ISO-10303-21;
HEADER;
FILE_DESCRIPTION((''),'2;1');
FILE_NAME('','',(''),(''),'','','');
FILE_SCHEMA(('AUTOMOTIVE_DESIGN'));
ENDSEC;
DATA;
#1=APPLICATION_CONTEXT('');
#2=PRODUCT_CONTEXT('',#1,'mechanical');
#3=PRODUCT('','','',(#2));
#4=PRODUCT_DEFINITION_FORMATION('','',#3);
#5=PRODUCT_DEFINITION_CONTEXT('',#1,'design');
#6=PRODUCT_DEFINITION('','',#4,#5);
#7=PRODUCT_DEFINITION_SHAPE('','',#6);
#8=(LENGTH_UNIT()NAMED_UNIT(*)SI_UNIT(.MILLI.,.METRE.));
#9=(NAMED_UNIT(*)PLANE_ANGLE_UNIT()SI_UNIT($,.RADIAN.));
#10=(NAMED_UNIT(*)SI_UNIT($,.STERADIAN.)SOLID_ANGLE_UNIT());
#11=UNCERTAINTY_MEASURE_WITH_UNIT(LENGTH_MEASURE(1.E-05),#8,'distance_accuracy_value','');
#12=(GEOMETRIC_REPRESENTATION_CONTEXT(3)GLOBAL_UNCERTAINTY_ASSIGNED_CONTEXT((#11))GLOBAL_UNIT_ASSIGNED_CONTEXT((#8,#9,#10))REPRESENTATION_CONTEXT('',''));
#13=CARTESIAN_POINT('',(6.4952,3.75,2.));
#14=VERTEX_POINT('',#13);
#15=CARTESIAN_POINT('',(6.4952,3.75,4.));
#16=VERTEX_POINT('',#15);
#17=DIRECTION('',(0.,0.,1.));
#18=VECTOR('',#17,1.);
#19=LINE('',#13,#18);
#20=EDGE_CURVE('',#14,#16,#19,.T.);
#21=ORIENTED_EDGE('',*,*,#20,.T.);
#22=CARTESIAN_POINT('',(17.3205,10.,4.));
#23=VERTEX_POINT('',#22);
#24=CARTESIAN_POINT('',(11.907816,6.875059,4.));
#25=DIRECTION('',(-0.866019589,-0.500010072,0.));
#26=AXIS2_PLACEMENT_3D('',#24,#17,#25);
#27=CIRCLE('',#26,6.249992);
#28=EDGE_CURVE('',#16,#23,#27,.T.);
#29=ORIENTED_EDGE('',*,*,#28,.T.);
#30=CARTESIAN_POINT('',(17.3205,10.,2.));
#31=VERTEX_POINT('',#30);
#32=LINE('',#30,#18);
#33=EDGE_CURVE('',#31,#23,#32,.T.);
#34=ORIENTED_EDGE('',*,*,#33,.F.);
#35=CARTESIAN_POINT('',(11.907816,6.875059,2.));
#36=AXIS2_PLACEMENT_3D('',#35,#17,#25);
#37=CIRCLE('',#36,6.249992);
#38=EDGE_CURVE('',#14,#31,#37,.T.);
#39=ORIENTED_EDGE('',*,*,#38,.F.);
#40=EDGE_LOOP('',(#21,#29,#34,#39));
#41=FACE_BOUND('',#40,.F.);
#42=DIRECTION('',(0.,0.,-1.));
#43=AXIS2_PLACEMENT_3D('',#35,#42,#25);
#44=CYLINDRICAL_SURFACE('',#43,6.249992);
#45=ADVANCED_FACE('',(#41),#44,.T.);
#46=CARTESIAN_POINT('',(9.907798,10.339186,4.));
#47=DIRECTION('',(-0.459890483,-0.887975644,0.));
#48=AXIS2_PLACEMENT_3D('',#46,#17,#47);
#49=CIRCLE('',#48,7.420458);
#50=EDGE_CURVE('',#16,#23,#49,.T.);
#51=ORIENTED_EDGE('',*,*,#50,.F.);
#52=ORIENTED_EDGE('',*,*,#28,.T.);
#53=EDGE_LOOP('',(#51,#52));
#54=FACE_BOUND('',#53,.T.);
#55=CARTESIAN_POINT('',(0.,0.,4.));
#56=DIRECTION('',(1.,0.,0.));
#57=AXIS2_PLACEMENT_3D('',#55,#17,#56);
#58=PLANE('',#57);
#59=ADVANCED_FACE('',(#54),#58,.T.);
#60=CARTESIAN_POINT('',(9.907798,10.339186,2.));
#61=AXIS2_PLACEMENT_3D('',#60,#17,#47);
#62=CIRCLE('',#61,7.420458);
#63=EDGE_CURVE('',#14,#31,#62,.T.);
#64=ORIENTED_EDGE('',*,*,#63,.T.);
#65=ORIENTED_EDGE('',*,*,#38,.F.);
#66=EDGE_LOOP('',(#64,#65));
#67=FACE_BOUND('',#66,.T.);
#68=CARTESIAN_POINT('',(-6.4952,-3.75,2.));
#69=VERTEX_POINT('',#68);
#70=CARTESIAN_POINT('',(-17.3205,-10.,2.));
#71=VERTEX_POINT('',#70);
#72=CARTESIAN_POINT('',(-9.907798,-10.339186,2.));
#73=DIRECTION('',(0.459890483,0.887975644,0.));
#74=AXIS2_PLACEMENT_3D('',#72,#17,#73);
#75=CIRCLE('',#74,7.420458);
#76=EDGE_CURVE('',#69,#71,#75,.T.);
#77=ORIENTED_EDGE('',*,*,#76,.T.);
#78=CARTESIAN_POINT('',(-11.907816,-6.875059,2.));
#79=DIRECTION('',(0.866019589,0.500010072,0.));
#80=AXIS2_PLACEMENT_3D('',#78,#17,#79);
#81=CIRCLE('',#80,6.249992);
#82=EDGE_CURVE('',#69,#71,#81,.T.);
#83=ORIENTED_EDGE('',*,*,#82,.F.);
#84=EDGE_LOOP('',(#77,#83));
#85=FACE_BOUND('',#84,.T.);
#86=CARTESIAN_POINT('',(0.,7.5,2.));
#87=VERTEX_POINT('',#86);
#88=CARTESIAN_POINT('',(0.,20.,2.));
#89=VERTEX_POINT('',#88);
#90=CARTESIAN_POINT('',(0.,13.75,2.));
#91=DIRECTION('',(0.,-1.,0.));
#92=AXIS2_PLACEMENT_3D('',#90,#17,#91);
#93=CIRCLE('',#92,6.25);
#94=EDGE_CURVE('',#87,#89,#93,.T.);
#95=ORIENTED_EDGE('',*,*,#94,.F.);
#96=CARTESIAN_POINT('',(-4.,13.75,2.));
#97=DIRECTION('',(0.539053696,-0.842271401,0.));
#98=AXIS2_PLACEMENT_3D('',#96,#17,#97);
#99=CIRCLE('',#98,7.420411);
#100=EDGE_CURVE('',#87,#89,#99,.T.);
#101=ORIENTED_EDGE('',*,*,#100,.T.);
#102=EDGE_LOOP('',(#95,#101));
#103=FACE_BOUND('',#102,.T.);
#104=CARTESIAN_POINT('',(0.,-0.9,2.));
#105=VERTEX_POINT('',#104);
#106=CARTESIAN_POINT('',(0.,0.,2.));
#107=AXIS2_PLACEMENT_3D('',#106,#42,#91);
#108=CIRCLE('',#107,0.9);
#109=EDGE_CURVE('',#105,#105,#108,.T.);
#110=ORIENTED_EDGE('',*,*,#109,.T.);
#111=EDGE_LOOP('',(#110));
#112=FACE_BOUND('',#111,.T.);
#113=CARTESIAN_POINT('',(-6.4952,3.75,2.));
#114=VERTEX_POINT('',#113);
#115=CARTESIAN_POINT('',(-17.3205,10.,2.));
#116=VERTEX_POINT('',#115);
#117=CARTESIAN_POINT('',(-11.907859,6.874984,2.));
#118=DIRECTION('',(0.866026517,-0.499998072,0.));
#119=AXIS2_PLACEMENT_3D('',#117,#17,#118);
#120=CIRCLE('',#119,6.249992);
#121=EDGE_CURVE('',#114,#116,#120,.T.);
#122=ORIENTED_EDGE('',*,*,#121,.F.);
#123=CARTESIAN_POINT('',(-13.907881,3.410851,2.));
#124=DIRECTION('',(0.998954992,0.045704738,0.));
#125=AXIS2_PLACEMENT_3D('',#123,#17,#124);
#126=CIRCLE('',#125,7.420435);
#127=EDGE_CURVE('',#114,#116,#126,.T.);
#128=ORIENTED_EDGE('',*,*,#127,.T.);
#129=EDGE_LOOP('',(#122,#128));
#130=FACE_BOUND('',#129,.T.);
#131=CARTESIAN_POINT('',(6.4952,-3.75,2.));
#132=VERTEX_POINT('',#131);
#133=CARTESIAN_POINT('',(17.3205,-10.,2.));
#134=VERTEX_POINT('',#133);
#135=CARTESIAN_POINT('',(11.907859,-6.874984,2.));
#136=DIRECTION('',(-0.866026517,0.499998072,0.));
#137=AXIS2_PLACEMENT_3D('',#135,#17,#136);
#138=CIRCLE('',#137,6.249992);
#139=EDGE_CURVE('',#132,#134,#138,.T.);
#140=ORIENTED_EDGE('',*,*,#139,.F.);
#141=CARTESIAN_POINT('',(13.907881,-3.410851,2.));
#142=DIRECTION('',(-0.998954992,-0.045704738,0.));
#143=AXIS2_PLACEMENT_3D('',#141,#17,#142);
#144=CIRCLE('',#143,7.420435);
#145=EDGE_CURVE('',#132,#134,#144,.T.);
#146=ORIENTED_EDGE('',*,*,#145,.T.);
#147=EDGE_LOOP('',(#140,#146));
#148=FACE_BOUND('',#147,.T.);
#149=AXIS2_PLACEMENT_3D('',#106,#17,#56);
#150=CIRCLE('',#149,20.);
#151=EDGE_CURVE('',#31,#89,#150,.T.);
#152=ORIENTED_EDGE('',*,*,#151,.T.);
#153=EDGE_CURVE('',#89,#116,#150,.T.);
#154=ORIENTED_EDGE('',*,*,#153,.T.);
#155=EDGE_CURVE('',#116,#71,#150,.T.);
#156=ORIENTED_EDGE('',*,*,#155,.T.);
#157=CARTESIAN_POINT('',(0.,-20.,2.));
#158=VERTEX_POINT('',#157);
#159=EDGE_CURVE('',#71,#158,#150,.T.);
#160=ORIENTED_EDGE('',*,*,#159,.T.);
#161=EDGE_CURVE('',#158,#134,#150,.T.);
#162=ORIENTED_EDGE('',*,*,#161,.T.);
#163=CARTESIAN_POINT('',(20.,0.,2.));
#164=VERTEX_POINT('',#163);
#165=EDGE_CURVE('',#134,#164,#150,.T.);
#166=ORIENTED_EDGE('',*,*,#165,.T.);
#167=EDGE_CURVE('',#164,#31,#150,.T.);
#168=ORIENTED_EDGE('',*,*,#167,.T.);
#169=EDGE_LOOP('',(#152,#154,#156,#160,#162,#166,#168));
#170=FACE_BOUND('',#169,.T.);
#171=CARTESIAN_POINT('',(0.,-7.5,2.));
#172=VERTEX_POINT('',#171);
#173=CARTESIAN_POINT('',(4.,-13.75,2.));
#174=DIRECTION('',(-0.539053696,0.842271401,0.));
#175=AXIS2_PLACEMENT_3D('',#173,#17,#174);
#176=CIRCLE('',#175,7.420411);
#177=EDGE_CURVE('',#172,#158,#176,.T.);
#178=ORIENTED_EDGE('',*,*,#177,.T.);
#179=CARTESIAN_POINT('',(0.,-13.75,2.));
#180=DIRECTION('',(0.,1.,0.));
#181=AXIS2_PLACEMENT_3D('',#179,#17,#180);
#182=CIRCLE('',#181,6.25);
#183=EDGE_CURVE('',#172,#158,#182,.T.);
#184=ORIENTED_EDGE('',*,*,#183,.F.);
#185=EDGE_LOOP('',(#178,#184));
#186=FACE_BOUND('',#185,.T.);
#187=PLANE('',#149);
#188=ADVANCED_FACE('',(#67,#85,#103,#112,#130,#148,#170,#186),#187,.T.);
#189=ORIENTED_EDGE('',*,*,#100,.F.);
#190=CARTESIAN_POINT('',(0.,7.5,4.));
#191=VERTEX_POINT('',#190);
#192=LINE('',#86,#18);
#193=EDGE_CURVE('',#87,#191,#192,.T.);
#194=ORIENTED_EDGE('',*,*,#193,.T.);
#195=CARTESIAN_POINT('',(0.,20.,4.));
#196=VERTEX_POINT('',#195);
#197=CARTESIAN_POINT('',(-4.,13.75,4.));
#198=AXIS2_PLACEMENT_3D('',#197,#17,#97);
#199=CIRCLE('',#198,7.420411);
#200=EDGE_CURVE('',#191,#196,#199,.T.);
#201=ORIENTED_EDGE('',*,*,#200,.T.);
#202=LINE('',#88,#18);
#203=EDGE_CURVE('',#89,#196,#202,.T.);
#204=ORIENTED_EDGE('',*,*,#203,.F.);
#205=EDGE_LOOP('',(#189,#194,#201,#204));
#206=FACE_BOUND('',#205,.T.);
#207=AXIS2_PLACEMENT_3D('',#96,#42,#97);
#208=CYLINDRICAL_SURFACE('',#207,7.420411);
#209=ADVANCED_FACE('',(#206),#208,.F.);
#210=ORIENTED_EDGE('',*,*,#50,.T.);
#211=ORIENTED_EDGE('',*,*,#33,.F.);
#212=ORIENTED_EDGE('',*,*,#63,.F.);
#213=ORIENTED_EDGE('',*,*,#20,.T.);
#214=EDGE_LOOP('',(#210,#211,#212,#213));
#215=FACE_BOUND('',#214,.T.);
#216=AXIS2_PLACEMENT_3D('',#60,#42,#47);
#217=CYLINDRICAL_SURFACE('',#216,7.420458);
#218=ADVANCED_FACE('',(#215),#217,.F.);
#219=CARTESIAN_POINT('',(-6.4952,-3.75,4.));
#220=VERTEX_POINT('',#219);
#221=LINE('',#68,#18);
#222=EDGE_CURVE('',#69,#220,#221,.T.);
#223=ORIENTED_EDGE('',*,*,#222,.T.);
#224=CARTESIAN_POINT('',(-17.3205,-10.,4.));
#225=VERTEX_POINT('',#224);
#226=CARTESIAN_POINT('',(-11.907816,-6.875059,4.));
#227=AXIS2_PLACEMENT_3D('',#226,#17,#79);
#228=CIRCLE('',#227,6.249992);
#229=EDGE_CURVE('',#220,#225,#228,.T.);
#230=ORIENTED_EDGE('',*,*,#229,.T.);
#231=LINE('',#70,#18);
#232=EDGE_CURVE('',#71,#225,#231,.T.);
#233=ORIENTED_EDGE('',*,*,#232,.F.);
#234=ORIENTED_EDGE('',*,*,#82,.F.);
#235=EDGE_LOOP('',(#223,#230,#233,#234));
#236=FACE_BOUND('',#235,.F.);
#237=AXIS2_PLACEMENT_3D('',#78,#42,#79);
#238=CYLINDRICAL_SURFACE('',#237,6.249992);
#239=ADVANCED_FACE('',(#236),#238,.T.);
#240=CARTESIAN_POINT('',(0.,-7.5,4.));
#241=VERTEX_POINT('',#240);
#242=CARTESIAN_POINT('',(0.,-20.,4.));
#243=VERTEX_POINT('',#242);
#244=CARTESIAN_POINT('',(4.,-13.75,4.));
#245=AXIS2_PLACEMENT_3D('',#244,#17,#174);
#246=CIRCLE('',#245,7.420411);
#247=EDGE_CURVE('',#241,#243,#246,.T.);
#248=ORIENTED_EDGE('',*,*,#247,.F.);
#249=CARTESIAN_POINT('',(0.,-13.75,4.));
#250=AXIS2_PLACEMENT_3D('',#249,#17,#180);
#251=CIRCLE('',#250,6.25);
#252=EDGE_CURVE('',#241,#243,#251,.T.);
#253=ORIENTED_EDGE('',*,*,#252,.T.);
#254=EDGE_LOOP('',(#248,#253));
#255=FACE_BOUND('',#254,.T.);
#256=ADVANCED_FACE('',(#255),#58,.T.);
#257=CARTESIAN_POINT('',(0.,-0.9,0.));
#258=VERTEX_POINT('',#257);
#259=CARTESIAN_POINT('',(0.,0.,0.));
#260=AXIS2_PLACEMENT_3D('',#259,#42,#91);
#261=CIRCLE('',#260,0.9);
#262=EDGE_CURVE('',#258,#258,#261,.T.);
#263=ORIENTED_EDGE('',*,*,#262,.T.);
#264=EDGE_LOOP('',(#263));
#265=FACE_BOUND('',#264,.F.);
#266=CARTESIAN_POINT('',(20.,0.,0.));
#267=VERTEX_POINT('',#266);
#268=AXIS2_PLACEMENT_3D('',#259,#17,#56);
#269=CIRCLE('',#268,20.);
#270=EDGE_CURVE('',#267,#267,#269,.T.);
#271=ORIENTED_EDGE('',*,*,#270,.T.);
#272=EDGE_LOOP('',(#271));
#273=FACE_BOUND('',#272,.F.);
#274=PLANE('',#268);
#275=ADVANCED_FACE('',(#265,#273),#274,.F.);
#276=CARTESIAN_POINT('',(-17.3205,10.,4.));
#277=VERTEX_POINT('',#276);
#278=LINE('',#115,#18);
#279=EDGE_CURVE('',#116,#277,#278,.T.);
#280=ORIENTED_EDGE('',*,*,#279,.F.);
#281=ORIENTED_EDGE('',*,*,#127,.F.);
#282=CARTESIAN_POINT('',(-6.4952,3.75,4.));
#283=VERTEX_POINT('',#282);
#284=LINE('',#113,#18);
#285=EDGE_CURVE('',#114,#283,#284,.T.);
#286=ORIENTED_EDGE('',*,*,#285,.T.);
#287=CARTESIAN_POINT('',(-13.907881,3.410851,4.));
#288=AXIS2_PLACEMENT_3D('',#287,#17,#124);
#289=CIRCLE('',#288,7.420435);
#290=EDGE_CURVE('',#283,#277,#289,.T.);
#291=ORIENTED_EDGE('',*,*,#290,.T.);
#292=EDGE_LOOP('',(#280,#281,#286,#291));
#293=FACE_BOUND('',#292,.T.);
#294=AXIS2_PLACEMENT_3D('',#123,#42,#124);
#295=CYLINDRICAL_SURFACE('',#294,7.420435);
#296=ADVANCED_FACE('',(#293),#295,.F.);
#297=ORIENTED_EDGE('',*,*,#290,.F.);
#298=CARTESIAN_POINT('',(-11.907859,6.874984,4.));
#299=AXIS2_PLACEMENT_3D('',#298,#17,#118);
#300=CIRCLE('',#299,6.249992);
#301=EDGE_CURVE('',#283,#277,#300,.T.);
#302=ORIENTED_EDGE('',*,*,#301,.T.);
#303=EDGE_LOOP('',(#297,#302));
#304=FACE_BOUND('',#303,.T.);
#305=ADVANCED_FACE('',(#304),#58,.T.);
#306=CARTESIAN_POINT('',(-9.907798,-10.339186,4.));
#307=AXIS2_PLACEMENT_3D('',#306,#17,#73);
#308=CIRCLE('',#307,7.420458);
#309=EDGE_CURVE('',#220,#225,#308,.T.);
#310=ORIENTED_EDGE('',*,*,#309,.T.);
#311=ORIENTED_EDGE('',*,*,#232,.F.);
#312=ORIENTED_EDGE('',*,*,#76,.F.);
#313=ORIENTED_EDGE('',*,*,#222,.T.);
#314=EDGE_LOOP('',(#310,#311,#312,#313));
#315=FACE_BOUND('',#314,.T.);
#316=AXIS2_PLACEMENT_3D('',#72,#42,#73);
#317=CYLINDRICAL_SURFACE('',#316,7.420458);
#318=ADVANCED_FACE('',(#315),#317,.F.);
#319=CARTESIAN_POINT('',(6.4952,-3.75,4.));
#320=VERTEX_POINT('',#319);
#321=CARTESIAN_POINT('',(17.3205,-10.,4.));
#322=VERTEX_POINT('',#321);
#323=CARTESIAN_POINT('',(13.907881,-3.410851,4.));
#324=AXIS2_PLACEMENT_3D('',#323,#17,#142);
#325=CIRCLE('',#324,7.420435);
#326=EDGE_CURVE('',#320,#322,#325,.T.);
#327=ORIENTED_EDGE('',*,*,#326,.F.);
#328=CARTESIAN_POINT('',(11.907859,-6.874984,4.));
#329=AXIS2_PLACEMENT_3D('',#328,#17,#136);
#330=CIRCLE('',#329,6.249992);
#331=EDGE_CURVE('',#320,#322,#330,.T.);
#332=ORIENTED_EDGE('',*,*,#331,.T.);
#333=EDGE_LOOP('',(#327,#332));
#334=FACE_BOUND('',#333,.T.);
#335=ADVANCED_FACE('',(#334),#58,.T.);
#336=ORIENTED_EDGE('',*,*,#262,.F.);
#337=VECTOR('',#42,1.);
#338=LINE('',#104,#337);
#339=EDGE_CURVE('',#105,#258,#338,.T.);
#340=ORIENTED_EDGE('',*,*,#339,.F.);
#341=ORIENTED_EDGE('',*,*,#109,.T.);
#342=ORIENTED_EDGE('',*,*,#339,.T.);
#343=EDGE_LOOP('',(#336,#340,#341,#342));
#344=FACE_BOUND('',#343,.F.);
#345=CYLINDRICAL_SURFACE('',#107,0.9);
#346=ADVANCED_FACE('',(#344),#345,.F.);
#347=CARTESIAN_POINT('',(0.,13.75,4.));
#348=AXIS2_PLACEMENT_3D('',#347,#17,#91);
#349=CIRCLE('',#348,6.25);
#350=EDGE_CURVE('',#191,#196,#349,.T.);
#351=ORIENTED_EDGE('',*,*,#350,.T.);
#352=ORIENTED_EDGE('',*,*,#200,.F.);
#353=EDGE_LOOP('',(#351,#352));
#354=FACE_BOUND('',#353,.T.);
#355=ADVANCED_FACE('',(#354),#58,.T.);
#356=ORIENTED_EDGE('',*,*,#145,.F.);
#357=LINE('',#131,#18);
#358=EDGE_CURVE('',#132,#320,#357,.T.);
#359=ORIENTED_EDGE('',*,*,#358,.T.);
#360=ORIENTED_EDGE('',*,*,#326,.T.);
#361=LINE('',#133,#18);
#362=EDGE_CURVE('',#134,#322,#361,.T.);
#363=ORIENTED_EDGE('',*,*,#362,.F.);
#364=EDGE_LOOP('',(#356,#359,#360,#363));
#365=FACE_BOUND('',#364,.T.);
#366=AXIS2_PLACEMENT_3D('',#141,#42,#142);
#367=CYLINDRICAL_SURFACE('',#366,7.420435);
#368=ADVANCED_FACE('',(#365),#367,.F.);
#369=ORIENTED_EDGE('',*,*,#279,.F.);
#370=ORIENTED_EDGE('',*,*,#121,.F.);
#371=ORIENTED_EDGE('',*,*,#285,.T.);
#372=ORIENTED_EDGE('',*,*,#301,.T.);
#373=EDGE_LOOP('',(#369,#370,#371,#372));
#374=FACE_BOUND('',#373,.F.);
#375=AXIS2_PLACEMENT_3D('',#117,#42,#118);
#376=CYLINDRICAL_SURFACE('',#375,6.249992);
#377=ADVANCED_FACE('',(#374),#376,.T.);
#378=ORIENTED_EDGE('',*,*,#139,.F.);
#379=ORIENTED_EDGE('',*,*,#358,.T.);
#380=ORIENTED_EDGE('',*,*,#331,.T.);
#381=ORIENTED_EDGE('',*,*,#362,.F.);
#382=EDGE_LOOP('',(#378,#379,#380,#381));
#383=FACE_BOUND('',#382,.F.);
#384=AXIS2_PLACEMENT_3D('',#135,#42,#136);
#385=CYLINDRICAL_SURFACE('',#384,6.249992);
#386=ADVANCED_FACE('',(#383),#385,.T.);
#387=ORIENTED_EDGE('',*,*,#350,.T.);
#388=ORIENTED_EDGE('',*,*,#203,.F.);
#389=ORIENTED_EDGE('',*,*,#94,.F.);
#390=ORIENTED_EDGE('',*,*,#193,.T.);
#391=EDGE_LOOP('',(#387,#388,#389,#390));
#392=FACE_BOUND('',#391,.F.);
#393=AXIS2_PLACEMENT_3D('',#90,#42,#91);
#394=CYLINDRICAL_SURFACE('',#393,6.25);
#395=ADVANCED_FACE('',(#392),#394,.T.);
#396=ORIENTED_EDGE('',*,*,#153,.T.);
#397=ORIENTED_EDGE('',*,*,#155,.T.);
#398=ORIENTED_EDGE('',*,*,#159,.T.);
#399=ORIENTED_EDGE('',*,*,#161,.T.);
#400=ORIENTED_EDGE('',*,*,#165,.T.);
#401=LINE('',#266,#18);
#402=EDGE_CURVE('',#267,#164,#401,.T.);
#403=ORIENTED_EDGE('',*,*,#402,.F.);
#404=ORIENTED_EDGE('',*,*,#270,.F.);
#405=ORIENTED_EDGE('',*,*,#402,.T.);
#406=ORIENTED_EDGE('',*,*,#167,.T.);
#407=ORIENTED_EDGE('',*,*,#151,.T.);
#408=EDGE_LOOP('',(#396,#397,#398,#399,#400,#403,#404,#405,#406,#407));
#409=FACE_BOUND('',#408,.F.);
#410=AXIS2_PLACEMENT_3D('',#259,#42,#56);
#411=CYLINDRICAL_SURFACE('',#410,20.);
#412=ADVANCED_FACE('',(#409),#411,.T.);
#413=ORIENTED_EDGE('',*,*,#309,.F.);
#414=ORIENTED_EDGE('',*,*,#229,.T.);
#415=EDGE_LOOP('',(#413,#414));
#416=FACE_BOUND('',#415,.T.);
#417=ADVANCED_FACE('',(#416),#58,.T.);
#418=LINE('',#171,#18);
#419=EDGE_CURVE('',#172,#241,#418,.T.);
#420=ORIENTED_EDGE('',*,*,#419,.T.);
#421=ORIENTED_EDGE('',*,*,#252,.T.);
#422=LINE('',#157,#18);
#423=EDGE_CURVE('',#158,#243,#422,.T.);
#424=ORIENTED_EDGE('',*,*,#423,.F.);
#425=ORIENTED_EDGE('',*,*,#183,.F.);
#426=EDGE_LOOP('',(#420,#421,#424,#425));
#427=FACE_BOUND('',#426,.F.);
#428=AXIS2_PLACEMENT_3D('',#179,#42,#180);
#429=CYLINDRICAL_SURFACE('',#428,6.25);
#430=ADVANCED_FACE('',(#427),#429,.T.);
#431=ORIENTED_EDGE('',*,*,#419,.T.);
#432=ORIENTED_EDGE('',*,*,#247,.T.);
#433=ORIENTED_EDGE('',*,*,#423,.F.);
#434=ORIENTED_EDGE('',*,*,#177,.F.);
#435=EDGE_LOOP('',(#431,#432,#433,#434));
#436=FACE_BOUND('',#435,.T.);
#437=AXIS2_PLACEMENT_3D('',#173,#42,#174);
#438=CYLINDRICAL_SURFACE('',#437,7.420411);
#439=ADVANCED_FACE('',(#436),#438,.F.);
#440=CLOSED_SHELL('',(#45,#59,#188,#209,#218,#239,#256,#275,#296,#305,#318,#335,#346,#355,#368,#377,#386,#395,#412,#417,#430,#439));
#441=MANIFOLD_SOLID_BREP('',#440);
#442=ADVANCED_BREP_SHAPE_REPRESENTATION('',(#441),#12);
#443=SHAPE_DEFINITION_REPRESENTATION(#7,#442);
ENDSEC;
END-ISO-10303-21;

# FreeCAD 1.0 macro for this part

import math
import FreeCAD as App
import Part
import Sketcher

doc = App.newDocument("Part")
body = doc.addObject("PartDesign::Body", "Body")

# Sketch on XY plane
sketch1 = doc.addObject("Sketcher::SketchObject", "Sketch")
body.addObject(sketch1)
sketch1.AttachmentSupport = (doc.XY_Plane, [""])
sketch1.MapMode = "FlatFace"
sketch1.addGeometry(Part.Circle(App.Vector(0, 0, 0), App.Vector(0, 0, 1), 20), False)
sketch1.addConstraint([
    Sketcher.Constraint("Coincident", 0, 3, -1, 1),
    Sketcher.Constraint("Diameter", 0, 40.0),
])
pad1 = doc.addObject("PartDesign::Pad", "Pad")
body.addObject(pad1)
pad1.Profile = sketch1
pad1.Length = 2

# Sketch on XY plane
sketch2 = doc.addObject("Sketcher::SketchObject", "Sketch001")
body.addObject(sketch2)
sketch2.AttachmentSupport = (doc.XY_Plane, [""])
sketch2.MapMode = "FlatFace"
sketch2.AttachmentOffset = App.Placement(App.Vector(0, 0, 2), App.Rotation())
sketch2.addGeometry([
    Part.ArcOfCircle(Part.Circle(App.Vector(10, 10, 0), App.Vector(0, 0, 1), 7), math.radians(-117), math.radians(-3)),  # 0
    Part.ArcOfCircle(Part.Circle(App.Vector(12, 7, 0), App.Vector(0, 0, 1), 6), math.radians(-150), math.radians(30)),  # 1
    Part.ArcOfCircle(Part.Circle(App.Vector(14, -3, 0), App.Vector(0, 0, 1), 7), math.radians(-177), math.radians(-63)),  # 2
    Part.ArcOfCircle(Part.Circle(App.Vector(12, -7, 0), App.Vector(0, 0, 1), 6), math.radians(150), math.radians(330)),  # 3
    Part.ArcOfCircle(Part.Circle(App.Vector(-4, 14, 0), App.Vector(0, 0, 1), 7), math.radians(-57), math.radians(57)),  # 4
    Part.ArcOfCircle(Part.Circle(App.Vector(0, 14, 0), App.Vector(0, 0, 1), 6), math.radians(-90), math.radians(90)),  # 5
    Part.ArcOfCircle(Part.Circle(App.Vector(4, -14, 0), App.Vector(0, 0, 1), 7), math.radians(123), math.radians(237)),  # 6
    Part.ArcOfCircle(Part.Circle(App.Vector(0, -14, 0), App.Vector(0, 0, 1), 6), math.radians(90), math.radians(270)),  # 7
    Part.ArcOfCircle(Part.Circle(App.Vector(-14, 3, 0), App.Vector(0, 0, 1), 7), math.radians(3), math.radians(117)),  # 8
    Part.ArcOfCircle(Part.Circle(App.Vector(-12, 7, 0), App.Vector(0, 0, 1), 6), math.radians(-30), math.radians(150)),  # 9
    Part.ArcOfCircle(Part.Circle(App.Vector(-10, -10, 0), App.Vector(0, 0, 1), 7), math.radians(63), math.radians(177)),  # 10
    Part.ArcOfCircle(Part.Circle(App.Vector(-12, -7, 0), App.Vector(0, 0, 1), 6), math.radians(30), math.radians(210)),  # 11
], False)
sketch2.addConstraint([
    Sketcher.Constraint("Coincident", 0, 1, 1, 1),
    Sketcher.Constraint("Coincident", 1, 2, 0, 2),
    Sketcher.Constraint("Coincident", 2, 1, 3, 1),
    Sketcher.Constraint("Coincident", 3, 2, 2, 2),
    Sketcher.Constraint("Coincident", 4, 1, 5, 1),
    Sketcher.Constraint("Coincident", 5, 2, 4, 2),
    Sketcher.Constraint("Coincident", 6, 1, 7, 1),
    Sketcher.Constraint("Coincident", 7, 2, 6, 2),
    Sketcher.Constraint("Coincident", 8, 1, 9, 1),
    Sketcher.Constraint("Coincident", 9, 2, 8, 2),
    Sketcher.Constraint("Coincident", 10, 1, 11, 1),
    Sketcher.Constraint("Coincident", 11, 2, 10, 2),
    Sketcher.Constraint("Equal", 0, 2),
    Sketcher.Constraint("Equal", 1, 3),
    Sketcher.Constraint("Equal", 2, 4),
    Sketcher.Constraint("Equal", 3, 5),
    Sketcher.Constraint("Equal", 4, 6),
    Sketcher.Constraint("Equal", 5, 7),
    Sketcher.Constraint("Equal", 6, 8),
    Sketcher.Constraint("Equal", 7, 9),
    Sketcher.Constraint("Equal", 8, 10),
    Sketcher.Constraint("Equal", 9, 11),
    Sketcher.Constraint("Symmetric", 4, 3, 6, 3, -1, 1),
    Sketcher.Constraint("Symmetric", 5, 3, 7, 3, -1, 1),
    Sketcher.Constraint("Symmetric", 2, 3, 8, 3, -1, 1),
    Sketcher.Constraint("Symmetric", 3, 3, 9, 3, -1, 1),
    Sketcher.Constraint("Symmetric", 0, 3, 10, 3, -1, 1),
    Sketcher.Constraint("Symmetric", 1, 3, 11, 3, -1, 1),
    Sketcher.Constraint("Symmetric", 1, 3, 9, 3, -2),
    Sketcher.Constraint("PointOnObject", 5, 3, -2),
    Sketcher.Constraint("PointOnObject", 4, 1, -2),
    Sketcher.Constraint("PointOnObject", 5, 2, -2),
    Sketcher.Constraint("Horizontal", 0, 1, 8, 1),
    Sketcher.Constraint("Horizontal", 1, 2, 9, 2),
    Sketcher.Constraint("DistanceX", 4, 3, -1, 1, 4.0),
    Sketcher.Constraint("DistanceX", 0, 3, 2, 3, 4.0),
    Sketcher.Constraint("Radius", 1, 6.25),
    Sketcher.Constraint("DistanceY", -1, 1, 1, 2, 10.0),
    Sketcher.Constraint("DistanceY", -1, 1, 5, 2, 20.0),
    Sketcher.Constraint("DistanceX", 0, 3, 1, 3, 2.0),
    Sketcher.Constraint("DistanceX", -1, 1, 0, 3, 9.9078),
])
pad2 = doc.addObject("PartDesign::Pad", "Pad001")
body.addObject(pad2)
pad2.Profile = sketch2
pad2.Length = 2

# Sketch on XY plane
sketch3 = doc.addObject("Sketcher::SketchObject", "Sketch002")
body.addObject(sketch3)
sketch3.AttachmentSupport = (doc.XY_Plane, [""])
sketch3.MapMode = "FlatFace"
sketch3.AttachmentOffset = App.Placement(App.Vector(0, 0, 2), App.Rotation())
sketch3.addGeometry(Part.Circle(App.Vector(0, 0, 0), App.Vector(0, 0, 1), 0.9), False)
sketch3.addConstraint([
    Sketcher.Constraint("Coincident", 0, 3, -1, 1),
    Sketcher.Constraint("Diameter", 0, 1.8),
])
doc.recompute()
hole = doc.addObject("PartDesign::Hole", "Hole")
body.addObject(hole)
hole.Profile = sketch3
hole.ThreadType = "None"
hole.Diameter = 1.8
hole.DepthType = "Dimension"
hole.Depth = 8.8
hole.DrillPoint = "Angled"
hole.DrillPointAngle = 118

doc.recompute()
